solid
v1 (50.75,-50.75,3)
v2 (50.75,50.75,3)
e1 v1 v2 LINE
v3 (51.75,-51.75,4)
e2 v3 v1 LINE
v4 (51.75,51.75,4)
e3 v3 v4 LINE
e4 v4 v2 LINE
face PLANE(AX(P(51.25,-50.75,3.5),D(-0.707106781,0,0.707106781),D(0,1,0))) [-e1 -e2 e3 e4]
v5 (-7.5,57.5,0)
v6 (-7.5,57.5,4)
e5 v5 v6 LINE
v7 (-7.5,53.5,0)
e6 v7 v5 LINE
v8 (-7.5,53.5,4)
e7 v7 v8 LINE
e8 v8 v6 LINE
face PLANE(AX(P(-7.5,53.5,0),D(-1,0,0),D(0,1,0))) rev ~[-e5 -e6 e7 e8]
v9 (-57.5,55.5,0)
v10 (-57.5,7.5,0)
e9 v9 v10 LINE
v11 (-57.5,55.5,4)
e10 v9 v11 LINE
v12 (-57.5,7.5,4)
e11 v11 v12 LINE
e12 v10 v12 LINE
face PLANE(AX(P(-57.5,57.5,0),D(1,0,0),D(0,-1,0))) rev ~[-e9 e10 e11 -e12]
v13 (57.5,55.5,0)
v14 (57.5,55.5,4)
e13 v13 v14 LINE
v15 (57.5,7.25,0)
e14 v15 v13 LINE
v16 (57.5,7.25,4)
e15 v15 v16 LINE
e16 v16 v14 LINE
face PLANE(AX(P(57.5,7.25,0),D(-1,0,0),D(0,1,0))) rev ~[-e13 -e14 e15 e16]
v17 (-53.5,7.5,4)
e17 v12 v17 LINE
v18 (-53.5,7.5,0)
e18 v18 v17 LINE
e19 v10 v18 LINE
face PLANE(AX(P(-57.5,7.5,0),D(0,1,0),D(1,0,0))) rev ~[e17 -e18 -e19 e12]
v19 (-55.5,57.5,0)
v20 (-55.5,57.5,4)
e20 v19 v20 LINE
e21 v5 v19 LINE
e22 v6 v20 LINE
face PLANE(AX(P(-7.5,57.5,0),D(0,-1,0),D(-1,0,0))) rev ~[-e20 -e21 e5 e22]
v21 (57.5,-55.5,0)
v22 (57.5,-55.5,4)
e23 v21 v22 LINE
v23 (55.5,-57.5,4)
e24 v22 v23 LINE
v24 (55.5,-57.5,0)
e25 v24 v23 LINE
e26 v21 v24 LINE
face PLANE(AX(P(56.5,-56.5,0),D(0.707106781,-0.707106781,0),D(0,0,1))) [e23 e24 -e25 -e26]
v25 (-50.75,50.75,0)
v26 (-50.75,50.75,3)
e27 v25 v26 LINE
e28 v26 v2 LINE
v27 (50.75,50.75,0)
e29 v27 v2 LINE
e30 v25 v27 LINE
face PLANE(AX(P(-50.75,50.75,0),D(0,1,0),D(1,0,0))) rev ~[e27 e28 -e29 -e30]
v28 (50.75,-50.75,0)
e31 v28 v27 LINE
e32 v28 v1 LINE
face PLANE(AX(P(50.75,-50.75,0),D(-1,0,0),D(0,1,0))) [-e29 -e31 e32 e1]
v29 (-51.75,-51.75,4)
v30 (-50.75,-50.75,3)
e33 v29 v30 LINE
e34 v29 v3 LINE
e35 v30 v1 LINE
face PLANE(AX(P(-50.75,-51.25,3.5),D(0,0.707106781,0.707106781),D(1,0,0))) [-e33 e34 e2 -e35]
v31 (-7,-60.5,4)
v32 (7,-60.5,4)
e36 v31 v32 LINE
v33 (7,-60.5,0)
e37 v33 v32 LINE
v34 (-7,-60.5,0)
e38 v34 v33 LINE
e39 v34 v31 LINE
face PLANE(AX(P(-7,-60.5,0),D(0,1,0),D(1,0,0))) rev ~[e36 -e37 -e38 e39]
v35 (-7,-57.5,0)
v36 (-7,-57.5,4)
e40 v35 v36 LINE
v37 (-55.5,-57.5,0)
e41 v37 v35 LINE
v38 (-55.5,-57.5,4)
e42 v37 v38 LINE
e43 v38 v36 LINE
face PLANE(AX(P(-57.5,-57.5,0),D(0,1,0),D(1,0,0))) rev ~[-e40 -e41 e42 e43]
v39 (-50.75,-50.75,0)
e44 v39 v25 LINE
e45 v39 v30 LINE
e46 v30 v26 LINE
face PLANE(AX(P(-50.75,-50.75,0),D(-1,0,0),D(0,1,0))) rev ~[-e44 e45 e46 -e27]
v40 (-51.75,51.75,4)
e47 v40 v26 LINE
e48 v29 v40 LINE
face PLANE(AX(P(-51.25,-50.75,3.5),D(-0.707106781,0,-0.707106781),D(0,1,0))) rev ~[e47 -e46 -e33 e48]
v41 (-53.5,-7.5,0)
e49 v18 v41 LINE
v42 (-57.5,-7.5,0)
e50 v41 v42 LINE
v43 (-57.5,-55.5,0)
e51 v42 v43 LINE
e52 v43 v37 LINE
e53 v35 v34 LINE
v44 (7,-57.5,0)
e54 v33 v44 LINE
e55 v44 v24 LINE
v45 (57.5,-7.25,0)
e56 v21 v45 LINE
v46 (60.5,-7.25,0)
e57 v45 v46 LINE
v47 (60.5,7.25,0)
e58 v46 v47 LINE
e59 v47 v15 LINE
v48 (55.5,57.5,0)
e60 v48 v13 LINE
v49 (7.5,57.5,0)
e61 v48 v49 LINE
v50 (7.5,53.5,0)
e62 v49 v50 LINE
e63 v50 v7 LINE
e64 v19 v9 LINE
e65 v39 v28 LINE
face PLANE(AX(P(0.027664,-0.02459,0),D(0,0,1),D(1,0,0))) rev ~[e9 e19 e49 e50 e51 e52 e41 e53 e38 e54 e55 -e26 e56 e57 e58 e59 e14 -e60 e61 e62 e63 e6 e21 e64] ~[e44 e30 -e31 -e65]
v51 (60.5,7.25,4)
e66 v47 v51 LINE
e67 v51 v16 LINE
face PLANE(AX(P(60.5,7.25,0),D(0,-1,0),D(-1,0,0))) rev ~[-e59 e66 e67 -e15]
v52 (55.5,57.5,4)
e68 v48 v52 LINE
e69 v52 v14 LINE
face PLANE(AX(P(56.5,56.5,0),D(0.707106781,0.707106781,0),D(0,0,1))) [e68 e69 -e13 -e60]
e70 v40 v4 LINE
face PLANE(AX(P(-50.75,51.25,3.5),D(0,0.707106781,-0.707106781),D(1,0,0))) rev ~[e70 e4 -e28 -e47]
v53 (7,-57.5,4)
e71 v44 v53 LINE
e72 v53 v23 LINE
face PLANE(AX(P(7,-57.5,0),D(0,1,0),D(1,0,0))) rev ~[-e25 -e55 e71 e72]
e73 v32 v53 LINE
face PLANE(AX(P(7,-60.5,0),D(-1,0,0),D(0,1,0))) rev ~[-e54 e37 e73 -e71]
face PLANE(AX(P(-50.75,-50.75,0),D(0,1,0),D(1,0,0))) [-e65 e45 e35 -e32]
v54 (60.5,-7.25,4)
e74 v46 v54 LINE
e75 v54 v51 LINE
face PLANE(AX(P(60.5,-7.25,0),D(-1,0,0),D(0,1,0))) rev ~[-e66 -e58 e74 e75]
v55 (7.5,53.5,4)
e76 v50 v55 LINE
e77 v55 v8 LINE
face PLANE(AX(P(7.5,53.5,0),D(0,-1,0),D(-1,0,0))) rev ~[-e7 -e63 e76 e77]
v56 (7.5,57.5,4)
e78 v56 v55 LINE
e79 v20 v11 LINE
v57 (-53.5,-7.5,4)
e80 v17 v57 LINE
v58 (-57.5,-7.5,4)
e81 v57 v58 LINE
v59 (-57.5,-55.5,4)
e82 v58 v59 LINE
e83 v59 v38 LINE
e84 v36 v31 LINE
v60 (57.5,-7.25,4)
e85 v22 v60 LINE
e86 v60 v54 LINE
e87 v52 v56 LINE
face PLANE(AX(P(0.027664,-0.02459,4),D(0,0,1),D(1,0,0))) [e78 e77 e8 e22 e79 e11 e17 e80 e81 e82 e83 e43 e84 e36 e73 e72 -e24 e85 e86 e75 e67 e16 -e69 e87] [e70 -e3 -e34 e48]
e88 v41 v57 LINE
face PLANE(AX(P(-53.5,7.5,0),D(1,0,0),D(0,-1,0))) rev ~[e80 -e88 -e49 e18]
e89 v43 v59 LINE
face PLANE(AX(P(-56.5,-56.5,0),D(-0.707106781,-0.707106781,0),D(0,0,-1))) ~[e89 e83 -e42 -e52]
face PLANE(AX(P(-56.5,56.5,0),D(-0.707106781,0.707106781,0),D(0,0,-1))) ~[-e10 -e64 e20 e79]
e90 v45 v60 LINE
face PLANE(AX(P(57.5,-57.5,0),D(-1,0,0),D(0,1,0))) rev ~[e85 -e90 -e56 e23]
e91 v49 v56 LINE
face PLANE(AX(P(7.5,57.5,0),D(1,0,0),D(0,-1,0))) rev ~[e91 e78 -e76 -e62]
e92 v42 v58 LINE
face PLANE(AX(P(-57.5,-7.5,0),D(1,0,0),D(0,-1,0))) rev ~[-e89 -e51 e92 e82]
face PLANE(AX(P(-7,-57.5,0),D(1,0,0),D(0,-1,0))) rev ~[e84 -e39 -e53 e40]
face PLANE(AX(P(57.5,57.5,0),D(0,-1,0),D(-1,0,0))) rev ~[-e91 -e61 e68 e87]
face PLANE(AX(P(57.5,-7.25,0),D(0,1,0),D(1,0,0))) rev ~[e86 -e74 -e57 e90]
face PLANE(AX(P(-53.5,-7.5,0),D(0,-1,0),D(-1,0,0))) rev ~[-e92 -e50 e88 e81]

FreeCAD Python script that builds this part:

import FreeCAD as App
import Part
import Sketcher
from FreeCAD import Vector


def edges_at(feature, points):
    """Names of the edges that pass closest to the given points."""
    edges = feature.Shape.Edges
    near = lambda p: min(range(len(edges)), key=lambda i: edges[i].distToShape(Part.Vertex(*p))[0])
    return sorted({f"Edge{near(p) + 1}" for p in points})

doc = App.newDocument("Part")
body = doc.addObject("PartDesign::Body", "Body")

sketch1 = body.newObject("Sketcher::SketchObject", "Sketch")
sketch1.AttachmentSupport = (doc.getObject("XY_Plane"), [""])
sketch1.MapMode = "FlatFace"
sketch1.addGeometry(Part.LineSegment(Vector(-7.5, 57.5, 0), Vector(-57.5, 57.5, 0)), False)
sketch1.addGeometry(Part.LineSegment(Vector(-57.5, 57.5, 0), Vector(-57.5, 7.5, 0)), False)
sketch1.addGeometry(Part.LineSegment(Vector(-57.5, 7.5, 0), Vector(-53.5, 7.5, 0)), False)
sketch1.addGeometry(Part.LineSegment(Vector(-53.5, 7.5, 0), Vector(-53.5, -7.5, 0)), False)
sketch1.addGeometry(Part.LineSegment(Vector(-53.5, -7.5, 0), Vector(-57.5, -7.5, 0)), False)
sketch1.addGeometry(Part.LineSegment(Vector(-57.5, -7.5, 0), Vector(-57.5, -57.5, 0)), False)
sketch1.addGeometry(Part.LineSegment(Vector(-57.5, -57.5, 0), Vector(-7, -57.5, 0)), False)
sketch1.addGeometry(Part.LineSegment(Vector(-7, -57.5, 0), Vector(-7, -60.5, 0)), False)
sketch1.addGeometry(Part.LineSegment(Vector(-7, -60.5, 0), Vector(7, -60.5, 0)), False)
sketch1.addGeometry(Part.LineSegment(Vector(7, -60.5, 0), Vector(7, -57.5, 0)), False)
sketch1.addGeometry(Part.LineSegment(Vector(7, -57.5, 0), Vector(57.5, -57.5, 0)), False)
sketch1.addGeometry(Part.LineSegment(Vector(57.5, -57.5, 0), Vector(57.5, -7.25, 0)), False)
sketch1.addGeometry(Part.LineSegment(Vector(57.5, -7.25, 0), Vector(60.5, -7.25, 0)), False)
sketch1.addGeometry(Part.LineSegment(Vector(60.5, -7.25, 0), Vector(60.5, 7.25, 0)), False)
sketch1.addGeometry(Part.LineSegment(Vector(60.5, 7.25, 0), Vector(57.5, 7.25, 0)), False)
sketch1.addGeometry(Part.LineSegment(Vector(57.5, 7.25, 0), Vector(57.5, 57.5, 0)), False)
sketch1.addGeometry(Part.LineSegment(Vector(57.5, 57.5, 0), Vector(7.5, 57.5, 0)), False)
sketch1.addGeometry(Part.LineSegment(Vector(7.5, 57.5, 0), Vector(7.5, 53.5, 0)), False)
sketch1.addGeometry(Part.LineSegment(Vector(7.5, 53.5, 0), Vector(-7.5, 53.5, 0)), False)
sketch1.addGeometry(Part.LineSegment(Vector(-7.5, 53.5, 0), Vector(-7.5, 57.5, 0)), False)
sketch1.addGeometry(Part.LineSegment(Vector(50.75, -50.75, 0), Vector(-50.75, -50.75, 0)), False)
sketch1.addGeometry(Part.LineSegment(Vector(-50.75, -50.75, 0), Vector(-50.75, 50.75, 0)), False)
sketch1.addGeometry(Part.LineSegment(Vector(-50.75, 50.75, 0), Vector(50.75, 50.75, 0)), False)
sketch1.addGeometry(Part.LineSegment(Vector(50.75, 50.75, 0), Vector(50.75, -50.75, 0)), False)
sketch1.addConstraint(Sketcher.Constraint("Coincident", 0, 2, 1, 1))
sketch1.addConstraint(Sketcher.Constraint("Coincident", 1, 2, 2, 1))
sketch1.addConstraint(Sketcher.Constraint("Coincident", 2, 2, 3, 1))
sketch1.addConstraint(Sketcher.Constraint("Coincident", 3, 2, 4, 1))
sketch1.addConstraint(Sketcher.Constraint("Coincident", 4, 2, 5, 1))
sketch1.addConstraint(Sketcher.Constraint("Coincident", 5, 2, 6, 1))
sketch1.addConstraint(Sketcher.Constraint("Coincident", 6, 2, 7, 1))
sketch1.addConstraint(Sketcher.Constraint("Coincident", 7, 2, 8, 1))
sketch1.addConstraint(Sketcher.Constraint("Coincident", 8, 2, 9, 1))
sketch1.addConstraint(Sketcher.Constraint("Coincident", 9, 2, 10, 1))
sketch1.addConstraint(Sketcher.Constraint("Coincident", 10, 2, 11, 1))
sketch1.addConstraint(Sketcher.Constraint("Coincident", 11, 2, 12, 1))
sketch1.addConstraint(Sketcher.Constraint("Coincident", 12, 2, 13, 1))
sketch1.addConstraint(Sketcher.Constraint("Coincident", 13, 2, 14, 1))
sketch1.addConstraint(Sketcher.Constraint("Coincident", 14, 2, 15, 1))
sketch1.addConstraint(Sketcher.Constraint("Coincident", 15, 2, 16, 1))
sketch1.addConstraint(Sketcher.Constraint("Coincident", 16, 2, 17, 1))
sketch1.addConstraint(Sketcher.Constraint("Coincident", 17, 2, 18, 1))
sketch1.addConstraint(Sketcher.Constraint("Coincident", 18, 2, 19, 1))
sketch1.addConstraint(Sketcher.Constraint("Coincident", 19, 2, 0, 1))
sketch1.addConstraint(Sketcher.Constraint("Coincident", 20, 2, 21, 1))
sketch1.addConstraint(Sketcher.Constraint("Coincident", 21, 2, 22, 1))
sketch1.addConstraint(Sketcher.Constraint("Coincident", 22, 2, 23, 1))
sketch1.addConstraint(Sketcher.Constraint("Coincident", 23, 2, 20, 1))
sketch1.addConstraint(Sketcher.Constraint("Horizontal", 0))
sketch1.addConstraint(Sketcher.Constraint("Vertical", 1))
sketch1.addConstraint(Sketcher.Constraint("Horizontal", 2))
sketch1.addConstraint(Sketcher.Constraint("Vertical", 3))
sketch1.addConstraint(Sketcher.Constraint("Horizontal", 4))
sketch1.addConstraint(Sketcher.Constraint("Vertical", 5))
sketch1.addConstraint(Sketcher.Constraint("Horizontal", 6))
sketch1.addConstraint(Sketcher.Constraint("Vertical", 7))
sketch1.addConstraint(Sketcher.Constraint("Horizontal", 8))
sketch1.addConstraint(Sketcher.Constraint("Vertical", 9))
sketch1.addConstraint(Sketcher.Constraint("Horizontal", 10))
sketch1.addConstraint(Sketcher.Constraint("Vertical", 11))
sketch1.addConstraint(Sketcher.Constraint("Horizontal", 12))
sketch1.addConstraint(Sketcher.Constraint("Vertical", 13))
sketch1.addConstraint(Sketcher.Constraint("Horizontal", 14))
sketch1.addConstraint(Sketcher.Constraint("Vertical", 15))
sketch1.addConstraint(Sketcher.Constraint("Horizontal", 16))
sketch1.addConstraint(Sketcher.Constraint("Vertical", 17))
sketch1.addConstraint(Sketcher.Constraint("Horizontal", 18))
sketch1.addConstraint(Sketcher.Constraint("Vertical", 19))
sketch1.addConstraint(Sketcher.Constraint("Horizontal", 20))
sketch1.addConstraint(Sketcher.Constraint("Vertical", 21))
sketch1.addConstraint(Sketcher.Constraint("Horizontal", 22))
sketch1.addConstraint(Sketcher.Constraint("Vertical", 23))
sketch1.addConstraint(Sketcher.Constraint("Symmetric", 0, 2, 10, 2, -1, 1))
sketch1.addConstraint(Sketcher.Constraint("Symmetric", 5, 2, 15, 2, -1, 1))
sketch1.addConstraint(Sketcher.Constraint("Symmetric", 20, 2, 22, 2, -1, 1))
sketch1.addConstraint(Sketcher.Constraint("Symmetric", 6, 2, 9, 2, -2))
sketch1.addConstraint(Sketcher.Constraint("Symmetric", 1, 2, 4, 2, -1))
sketch1.addConstraint(Sketcher.Constraint("Equal", 0, 16))
sketch1.addConstraint(Sketcher.Constraint("Equal", 16, 1))
sketch1.addConstraint(Sketcher.Constraint("Equal", 18, 3))
sketch1.addConstraint(Sketcher.Constraint("Equal", 14, 7))
sketch1.addConstraint(Sketcher.Constraint("Equal", 11, 15))
sketch1.addConstraint(Sketcher.Constraint("Equal", 4, 17))
sketch1.addConstraint(Sketcher.Constraint("Equal", 22, 21))
sketch1.addConstraint(Sketcher.Constraint("DistanceX", 0, 2, 0, 1, 50.0))
sketch1.addConstraint(Sketcher.Constraint("DistanceX", 2, 1, 2, 2, 4.0))
sketch1.addConstraint(Sketcher.Constraint("DistanceX", 8, 1, 8, 2, 14.0))
sketch1.addConstraint(Sketcher.Constraint("DistanceX", 12, 1, 12, 2, 3.0))
sketch1.addConstraint(Sketcher.Constraint("DistanceX", 18, 2, 18, 1, 15.0))
sketch1.addConstraint(Sketcher.Constraint("DistanceX", 20, 2, 20, 1, 101.5))
sketch1.addConstraint(Sketcher.Constraint("DistanceY", 13, 1, 13, 2, 14.5))
pad1 = body.newObject("PartDesign::Pad", "Pad")
pad1.Profile = sketch1
pad1.Length = 4
doc.recompute()

chamfer = body.newObject("PartDesign::Chamfer", "Chamfer")
chamfer.Base = (pad1, edges_at(pad1, [
    (-57.5, -57.5, 2),
    (57.5, -57.5, 2),
    (57.5, 57.5, 2),
    (-57.5, 57.5, 2),
]))
chamfer.Size = 2
doc.recompute()

chamfer2 = body.newObject("PartDesign::Chamfer", "Chamfer001")
chamfer2.Base = (chamfer, edges_at(chamfer, [
    (-50.75, 0, 4),
    (0, 50.75, 4),
    (50.75, 0, 4),
    (0, -50.75, 4),
]))
chamfer2.Size = 1

doc.recompute()
